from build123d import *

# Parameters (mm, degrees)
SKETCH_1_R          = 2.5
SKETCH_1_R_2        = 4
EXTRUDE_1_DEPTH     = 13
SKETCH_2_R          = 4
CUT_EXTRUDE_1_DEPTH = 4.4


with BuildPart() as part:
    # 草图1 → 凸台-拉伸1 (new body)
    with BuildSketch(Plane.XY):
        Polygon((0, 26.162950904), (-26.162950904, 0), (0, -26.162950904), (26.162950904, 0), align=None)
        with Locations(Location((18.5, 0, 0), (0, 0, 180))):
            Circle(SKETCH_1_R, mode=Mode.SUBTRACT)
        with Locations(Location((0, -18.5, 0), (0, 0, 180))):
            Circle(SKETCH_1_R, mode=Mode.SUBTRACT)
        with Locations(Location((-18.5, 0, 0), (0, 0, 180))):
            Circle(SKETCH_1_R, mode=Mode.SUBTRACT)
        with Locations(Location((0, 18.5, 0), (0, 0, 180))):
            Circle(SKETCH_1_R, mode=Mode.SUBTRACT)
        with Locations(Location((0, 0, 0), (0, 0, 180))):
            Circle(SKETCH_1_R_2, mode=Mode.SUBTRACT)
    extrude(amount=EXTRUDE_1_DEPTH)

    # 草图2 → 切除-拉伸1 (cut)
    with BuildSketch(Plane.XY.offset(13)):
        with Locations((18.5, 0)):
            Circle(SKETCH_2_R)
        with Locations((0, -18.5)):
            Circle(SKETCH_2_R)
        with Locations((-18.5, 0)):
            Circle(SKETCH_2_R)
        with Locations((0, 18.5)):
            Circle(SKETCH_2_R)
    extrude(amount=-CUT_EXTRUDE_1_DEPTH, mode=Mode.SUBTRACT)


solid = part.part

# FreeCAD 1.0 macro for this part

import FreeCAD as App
import Part
import Sketcher
from FreeCAD import Vector
Q = App.Units.Quantity


def add_polygon(sketch, points):
    """Adds a closed chain of lines whose ends are joined by coincident constraints."""
    first, n = sketch.GeometryCount, len(points)
    for a, b in zip(points, points[1:] + points[:1]):
        sketch.addGeometry(Part.LineSegment(App.Vector(*a, 0), App.Vector(*b, 0)), False)
    for i in range(n):
        sketch.addConstraint(Sketcher.Constraint("Coincident", first + i, 2, first + (i + 1) % n, 1))

doc = App.newDocument("Part")
body = doc.addObject("PartDesign::Body", "Body")

# Sketch on XY plane
sketch1 = body.newObject("Sketcher::SketchObject", "Sketch")
sketch1.AttachmentSupport = (doc.getObject("XY_Plane"), [""])
sketch1.MapMode = "FlatFace"
add_polygon(sketch1, [(0, 26.162951), (-26.162951, 0), (0, -26.162951), (26.162951, 0)])  # lines 0-3
sketch1.addGeometry(Part.Circle(Vector(0, -18.5, 0), Vector(0, 0, 1), 2.5), False)  # 4
sketch1.addGeometry(Part.Circle(Vector(-18.5, 0, 0), Vector(0, 0, 1), 2.5), False)  # 5
sketch1.addGeometry(Part.Circle(Vector(0, 0, 0), Vector(0, 0, 1), 4), False)  # 6
sketch1.addGeometry(Part.Circle(Vector(18.5, 0, 0), Vector(0, 0, 1), 2.5), False)  # 7
sketch1.addGeometry(Part.Circle(Vector(0, 18.5, 0), Vector(0, 0, 1), 2.5), False)  # 8
sketch1.addConstraint([
    Sketcher.Constraint("Coincident", 6, 3, -1, 1),
    Sketcher.Constraint("Equal", 4, 5),
    Sketcher.Constraint("Equal", 5, 7),
    Sketcher.Constraint("Equal", 7, 8),
    Sketcher.Constraint("Symmetric", 5, 3, 7, 3, -1, 1),
    Sketcher.Constraint("Symmetric", 4, 3, 8, 3, -1, 1),
    Sketcher.Constraint("Symmetric", 0, 2, 2, 2, -1, 1),
    Sketcher.Constraint("Symmetric", 1, 2, 3, 2, -1, 1),
    Sketcher.Constraint("PointOnObject", 4, 3, -2),
    Sketcher.Constraint("PointOnObject", 5, 3, -1),
    Sketcher.Constraint("PointOnObject", 0, 2, -1),
    Sketcher.Constraint("PointOnObject", 1, 2, -2),
    Sketcher.Constraint("Perpendicular", 0, 1),
    Sketcher.Constraint("Diameter", 4, Q("5 mm")),
    Sketcher.Constraint("Diameter", 6, Q("8 mm")),
    Sketcher.Constraint("Distance", 0, Q("37 mm")),
    Sketcher.Constraint("DistanceX", 5, 3, 7, 3, Q("37 mm")),
    Sketcher.Constraint("DistanceY", 4, 3, 8, 3, Q("37 mm")),
])
pad1 = body.newObject("PartDesign::Pad", "Pad")
pad1.Profile = sketch1
pad1.Length = 13

# Sketch on XY plane
sketch2 = body.newObject("Sketcher::SketchObject", "Sketch001")
sketch2.AttachmentSupport = (doc.getObject("XY_Plane"), [""])
sketch2.MapMode = "FlatFace"
sketch2.AttachmentOffset = App.Placement(Vector(0, 0, 13), App.Rotation())
sketch2.addGeometry([
    Part.Circle(Vector(18.5, 0, 0), Vector(0, 0, 1), 4),
    Part.Circle(Vector(0, -18.5, 0), Vector(0, 0, 1), 4),
    Part.Circle(Vector(-18.5, 0, 0), Vector(0, 0, 1), 4),
    Part.Circle(Vector(0, 18.5, 0), Vector(0, 0, 1), 4),
], False)
sketch2.addConstraint([
    Sketcher.Constraint("Equal", 0, 1),
    Sketcher.Constraint("Equal", 1, 2),
    Sketcher.Constraint("Equal", 2, 3),
    Sketcher.Constraint("Symmetric", 0, 3, 2, 3, -1, 1),
    Sketcher.Constraint("Symmetric", 1, 3, 3, 3, -1, 1),
    Sketcher.Constraint("PointOnObject", 0, 3, -1),
    Sketcher.Constraint("PointOnObject", 1, 3, -2),
    Sketcher.Constraint("Diameter", 0, Q("8 mm")),
    Sketcher.Constraint("DistanceX", 2, 3, 0, 3, Q("37 mm")),
    Sketcher.Constraint("DistanceY", 1, 3, 3, 3, Q("37 mm")),
])
pocket1 = body.newObject("PartDesign::Pocket", "Pocket")
pocket1.Profile = sketch2
pocket1.Length = 4.4

doc.recompute()
